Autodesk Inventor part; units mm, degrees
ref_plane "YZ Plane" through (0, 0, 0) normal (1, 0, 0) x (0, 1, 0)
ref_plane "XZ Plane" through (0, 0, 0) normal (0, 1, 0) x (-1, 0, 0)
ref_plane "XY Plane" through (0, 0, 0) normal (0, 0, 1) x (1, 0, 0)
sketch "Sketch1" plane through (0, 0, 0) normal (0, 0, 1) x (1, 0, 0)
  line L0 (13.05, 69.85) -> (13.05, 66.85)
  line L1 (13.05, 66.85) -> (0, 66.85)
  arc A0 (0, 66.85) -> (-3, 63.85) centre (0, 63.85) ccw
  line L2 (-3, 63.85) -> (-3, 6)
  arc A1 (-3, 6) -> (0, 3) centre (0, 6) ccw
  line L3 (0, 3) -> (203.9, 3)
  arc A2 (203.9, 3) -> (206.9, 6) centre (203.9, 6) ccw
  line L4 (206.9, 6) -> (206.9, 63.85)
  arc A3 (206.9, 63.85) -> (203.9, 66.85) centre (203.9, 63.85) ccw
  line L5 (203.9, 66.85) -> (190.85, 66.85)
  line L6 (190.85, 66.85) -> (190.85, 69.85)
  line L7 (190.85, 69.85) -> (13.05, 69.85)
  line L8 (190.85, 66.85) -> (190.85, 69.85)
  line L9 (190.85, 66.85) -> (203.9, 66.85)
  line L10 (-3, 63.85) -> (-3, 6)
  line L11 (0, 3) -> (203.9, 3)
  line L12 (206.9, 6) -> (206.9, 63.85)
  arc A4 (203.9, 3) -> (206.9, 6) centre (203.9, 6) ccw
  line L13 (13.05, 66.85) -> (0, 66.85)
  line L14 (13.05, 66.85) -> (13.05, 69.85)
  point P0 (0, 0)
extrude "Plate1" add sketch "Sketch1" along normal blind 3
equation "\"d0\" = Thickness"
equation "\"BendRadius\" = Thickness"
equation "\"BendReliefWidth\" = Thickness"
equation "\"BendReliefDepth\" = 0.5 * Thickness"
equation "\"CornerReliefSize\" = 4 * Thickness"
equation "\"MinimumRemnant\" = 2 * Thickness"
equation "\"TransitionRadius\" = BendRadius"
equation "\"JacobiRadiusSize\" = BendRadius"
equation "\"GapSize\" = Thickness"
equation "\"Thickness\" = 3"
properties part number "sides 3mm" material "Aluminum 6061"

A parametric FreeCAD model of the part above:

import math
import FreeCAD as App
import Part
import Sketcher

doc = App.newDocument("Part")
body = doc.addObject("PartDesign::Body", "Body")

sketch1 = body.newObject("Sketcher::SketchObject", "Sketch")
sketch1.AttachmentSupport = (doc.getObject("XY_Plane"), [""])
sketch1.MapMode = "FlatFace"
sketch1.addGeometry(Part.LineSegment(App.Vector(190.8, 69.8, 0), App.Vector(13.1, 69.8, 0)), False)
sketch1.addGeometry(Part.LineSegment(App.Vector(13.1, 69.8, 0), App.Vector(13.1, 66.8, 0)), False)
sketch1.addGeometry(Part.LineSegment(App.Vector(13.1, 66.8, 0), App.Vector(0, 66.8, 0)), False)
sketch1.addGeometry(Part.ArcOfCircle(Part.Circle(App.Vector(0, 63.9, 0), App.Vector(0, 0, 1), 3), math.radians(90), math.radians(180)), False)
sketch1.addGeometry(Part.LineSegment(App.Vector(-3, 63.9, 0), App.Vector(-3, 6, 0)), False)
sketch1.addGeometry(Part.ArcOfCircle(Part.Circle(App.Vector(0, 6, 0), App.Vector(0, 0, 1), 3), math.radians(180), math.radians(270)), False)
sketch1.addGeometry(Part.LineSegment(App.Vector(0, 3, 0), App.Vector(203.9, 3, 0)), False)
sketch1.addGeometry(Part.ArcOfCircle(Part.Circle(App.Vector(203.9, 6, 0), App.Vector(0, 0, 1), 3), math.radians(-90), math.radians(0)), False)
sketch1.addGeometry(Part.LineSegment(App.Vector(206.9, 6, 0), App.Vector(206.9, 63.9, 0)), False)
sketch1.addGeometry(Part.ArcOfCircle(Part.Circle(App.Vector(203.9, 63.9, 0), App.Vector(0, 0, 1), 3), math.radians(0), math.radians(90)), False)
sketch1.addGeometry(Part.LineSegment(App.Vector(203.9, 66.8, 0), App.Vector(190.8, 66.8, 0)), False)
sketch1.addGeometry(Part.LineSegment(App.Vector(190.8, 66.8, 0), App.Vector(190.8, 69.8, 0)), False)
sketch1.addConstraint(Sketcher.Constraint("Coincident", 0, 2, 1, 1))
sketch1.addConstraint(Sketcher.Constraint("Coincident", 1, 2, 2, 1))
sketch1.addConstraint(Sketcher.Constraint("Tangent", 2, 2, 3, 1))
sketch1.addConstraint(Sketcher.Constraint("Tangent", 3, 2, 4, 1))
sketch1.addConstraint(Sketcher.Constraint("Tangent", 4, 2, 5, 1))
sketch1.addConstraint(Sketcher.Constraint("Tangent", 5, 2, 6, 1))
sketch1.addConstraint(Sketcher.Constraint("Tangent", 6, 2, 7, 1))
sketch1.addConstraint(Sketcher.Constraint("Tangent", 7, 2, 8, 1))
sketch1.addConstraint(Sketcher.Constraint("Tangent", 8, 2, 9, 1))
sketch1.addConstraint(Sketcher.Constraint("Tangent", 9, 2, 10, 1))
sketch1.addConstraint(Sketcher.Constraint("Coincident", 10, 2, 11, 1))
sketch1.addConstraint(Sketcher.Constraint("Coincident", 11, 2, 0, 1))
sketch1.addConstraint(Sketcher.Constraint("Horizontal", 0))
sketch1.addConstraint(Sketcher.Constraint("Vertical", 1))
sketch1.addConstraint(Sketcher.Constraint("Horizontal", 2))
sketch1.addConstraint(Sketcher.Constraint("Vertical", 4))
sketch1.addConstraint(Sketcher.Constraint("Horizontal", 6))
sketch1.addConstraint(Sketcher.Constraint("Vertical", 8))
sketch1.addConstraint(Sketcher.Constraint("Horizontal", 10))
sketch1.addConstraint(Sketcher.Constraint("Vertical", 11))
sketch1.addConstraint(Sketcher.Constraint("Equal", 3, 5))
sketch1.addConstraint(Sketcher.Constraint("Equal", 5, 7))
sketch1.addConstraint(Sketcher.Constraint("Equal", 7, 9))
sketch1.addConstraint(Sketcher.Constraint("PointOnObject", 3, 3, -2))
sketch1.addConstraint(Sketcher.Constraint("Horizontal", 3, 3, 9, 3))
sketch1.addConstraint(Sketcher.Constraint("Equal", 2, 10))
sketch1.addConstraint(Sketcher.Constraint("Radius", 3, 3.0))
sketch1.addConstraint(Sketcher.Constraint("DistanceY", 1, 2, 1, 1, 3.0))
sketch1.addConstraint(Sketcher.Constraint("DistanceX", 0, 2, 0, 1, 177.8))
sketch1.addConstraint(Sketcher.Constraint("DistanceX", 6, 1, 6, 2, 203.9))
sketch1.addConstraint(Sketcher.Constraint("DistanceY", -1, 1, 5, 3, 6.0))
sketch1.addConstraint(Sketcher.Constraint("DistanceY", 4, 2, 4, 1, 57.85))
pad1 = body.newObject("PartDesign::Pad", "Pad")
pad1.Profile = sketch1
pad1.Length = 3

doc.recompute()
